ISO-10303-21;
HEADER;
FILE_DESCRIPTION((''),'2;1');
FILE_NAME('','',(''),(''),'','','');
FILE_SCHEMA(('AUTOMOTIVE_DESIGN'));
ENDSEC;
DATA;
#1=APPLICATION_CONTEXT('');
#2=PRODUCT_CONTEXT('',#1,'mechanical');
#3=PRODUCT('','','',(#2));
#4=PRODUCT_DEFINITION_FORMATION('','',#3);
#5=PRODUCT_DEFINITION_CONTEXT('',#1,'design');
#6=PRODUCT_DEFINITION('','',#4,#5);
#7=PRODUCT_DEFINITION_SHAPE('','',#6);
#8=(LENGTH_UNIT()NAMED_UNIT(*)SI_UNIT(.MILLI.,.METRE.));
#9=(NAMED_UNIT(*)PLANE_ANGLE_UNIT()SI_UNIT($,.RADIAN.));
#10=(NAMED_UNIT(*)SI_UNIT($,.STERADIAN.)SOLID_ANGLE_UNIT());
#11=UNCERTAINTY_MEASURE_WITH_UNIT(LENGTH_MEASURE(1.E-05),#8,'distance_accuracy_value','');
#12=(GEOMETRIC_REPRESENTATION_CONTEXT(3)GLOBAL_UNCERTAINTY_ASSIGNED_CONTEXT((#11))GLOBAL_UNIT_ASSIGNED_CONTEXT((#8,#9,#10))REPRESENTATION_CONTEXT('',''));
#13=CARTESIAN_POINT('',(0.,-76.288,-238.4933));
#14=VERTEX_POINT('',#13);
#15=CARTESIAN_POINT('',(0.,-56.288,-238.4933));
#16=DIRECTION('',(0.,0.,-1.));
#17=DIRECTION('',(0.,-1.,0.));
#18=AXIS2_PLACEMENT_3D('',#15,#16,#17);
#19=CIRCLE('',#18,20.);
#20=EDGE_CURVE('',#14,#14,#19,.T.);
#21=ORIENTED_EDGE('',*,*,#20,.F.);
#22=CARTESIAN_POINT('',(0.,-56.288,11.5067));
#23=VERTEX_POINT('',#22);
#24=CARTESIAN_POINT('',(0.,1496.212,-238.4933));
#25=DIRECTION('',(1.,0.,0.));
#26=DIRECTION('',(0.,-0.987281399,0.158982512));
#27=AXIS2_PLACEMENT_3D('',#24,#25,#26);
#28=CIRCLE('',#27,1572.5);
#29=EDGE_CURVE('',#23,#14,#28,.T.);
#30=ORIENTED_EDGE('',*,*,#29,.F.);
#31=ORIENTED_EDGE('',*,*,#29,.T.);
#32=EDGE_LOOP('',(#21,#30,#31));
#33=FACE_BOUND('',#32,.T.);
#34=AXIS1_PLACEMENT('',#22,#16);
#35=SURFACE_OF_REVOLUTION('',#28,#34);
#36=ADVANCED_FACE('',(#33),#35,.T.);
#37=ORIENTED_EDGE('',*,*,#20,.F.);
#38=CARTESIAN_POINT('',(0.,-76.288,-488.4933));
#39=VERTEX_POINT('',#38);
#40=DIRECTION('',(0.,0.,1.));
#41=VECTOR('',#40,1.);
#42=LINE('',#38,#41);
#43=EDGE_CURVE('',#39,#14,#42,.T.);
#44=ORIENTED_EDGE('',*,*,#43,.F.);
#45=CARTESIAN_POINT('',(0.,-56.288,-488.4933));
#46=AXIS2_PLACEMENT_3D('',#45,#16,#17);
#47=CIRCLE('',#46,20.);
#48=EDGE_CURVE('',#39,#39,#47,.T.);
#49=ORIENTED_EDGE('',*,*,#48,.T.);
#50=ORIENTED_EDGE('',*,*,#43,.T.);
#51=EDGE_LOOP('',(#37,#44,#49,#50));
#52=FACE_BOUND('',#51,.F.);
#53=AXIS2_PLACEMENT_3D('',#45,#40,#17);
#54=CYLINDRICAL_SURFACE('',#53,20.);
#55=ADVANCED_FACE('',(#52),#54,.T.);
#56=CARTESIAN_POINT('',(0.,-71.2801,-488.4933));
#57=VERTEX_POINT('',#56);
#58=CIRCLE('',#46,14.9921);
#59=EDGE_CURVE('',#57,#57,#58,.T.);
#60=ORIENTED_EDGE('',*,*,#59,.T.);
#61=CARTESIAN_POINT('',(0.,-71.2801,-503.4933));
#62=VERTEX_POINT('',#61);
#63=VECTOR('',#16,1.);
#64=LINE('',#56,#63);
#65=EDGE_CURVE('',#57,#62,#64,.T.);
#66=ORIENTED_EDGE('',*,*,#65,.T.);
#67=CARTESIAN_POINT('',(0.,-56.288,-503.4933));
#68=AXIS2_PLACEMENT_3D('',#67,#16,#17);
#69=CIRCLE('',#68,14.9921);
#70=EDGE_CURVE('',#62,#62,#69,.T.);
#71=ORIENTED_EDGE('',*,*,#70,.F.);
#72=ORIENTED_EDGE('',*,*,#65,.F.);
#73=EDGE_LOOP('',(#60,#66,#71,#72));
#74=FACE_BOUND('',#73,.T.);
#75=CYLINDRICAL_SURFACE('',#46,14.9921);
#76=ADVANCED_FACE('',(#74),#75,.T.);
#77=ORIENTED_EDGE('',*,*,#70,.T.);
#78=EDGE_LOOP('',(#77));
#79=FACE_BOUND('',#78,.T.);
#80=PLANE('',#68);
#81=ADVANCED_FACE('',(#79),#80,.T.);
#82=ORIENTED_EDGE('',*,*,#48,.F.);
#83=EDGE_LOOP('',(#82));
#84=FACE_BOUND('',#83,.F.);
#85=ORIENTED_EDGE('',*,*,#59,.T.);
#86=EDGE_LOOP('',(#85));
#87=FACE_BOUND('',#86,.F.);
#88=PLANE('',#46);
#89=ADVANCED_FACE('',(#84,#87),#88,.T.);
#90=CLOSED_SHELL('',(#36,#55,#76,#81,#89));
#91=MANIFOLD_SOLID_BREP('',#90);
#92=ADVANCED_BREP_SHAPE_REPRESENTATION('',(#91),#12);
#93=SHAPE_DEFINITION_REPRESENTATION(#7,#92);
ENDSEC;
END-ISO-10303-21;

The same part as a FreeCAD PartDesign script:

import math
import FreeCAD as App
import Part
import Sketcher
from FreeCAD import Vector
Q = App.Units.Quantity

doc = App.newDocument("Part")
body = doc.addObject("PartDesign::Body", "Body")

# Sketch on YZ plane
sketch1 = doc.addObject("Sketcher::SketchObject", "Sketch")
body.addObject(sketch1)
sketch1.AttachmentSupport = (doc.YZ_Plane, [""])
sketch1.MapMode = "FlatFace"
sketch1.addGeometry([
    Part.ArcOfCircle(Part.Circle(Vector(1496, -238, 0), Vector(0, 0, 1), 1572), math.radians(170.85), math.radians(180)),  # 0
    Part.LineSegment(Vector(-76, -238, 0), Vector(-76, -488, 0)),  # 1
    Part.LineSegment(Vector(-76, -488, 0), Vector(-71, -488, 0)),  # 2
    Part.LineSegment(Vector(-71, -488, 0), Vector(-71, -503, 0)),  # 3
    Part.LineSegment(Vector(-71, -503, 0), Vector(-56, -503, 0)),  # 4
    Part.LineSegment(Vector(-56, -503, 0), Vector(-56, 12, 0)),  # 5
], False)
sketch1.addGeometry(Part.LineSegment(Vector(-56, 12, 0), Vector(-56, -503, 0)), True)  # axis
sketch1.addConstraint([
    Sketcher.Constraint("Tangent", 0, 2, 1, 1),
    Sketcher.Constraint("Coincident", 1, 2, 2, 1),
    Sketcher.Constraint("Coincident", 2, 2, 3, 1),
    Sketcher.Constraint("Coincident", 3, 2, 4, 1),
    Sketcher.Constraint("Coincident", 4, 2, 5, 1),
    Sketcher.Constraint("Coincident", 5, 2, 0, 1),
    Sketcher.Constraint("Vertical", 1),
    Sketcher.Constraint("Horizontal", 2),
    Sketcher.Constraint("Vertical", 3),
    Sketcher.Constraint("Horizontal", 4),
    Sketcher.Constraint("Vertical", 5),
    Sketcher.Constraint("Vertical", 6),
    Sketcher.Constraint("Coincident", 6, 1, 5, 2),
    Sketcher.Constraint("Horizontal", 3, 2, 6, 2),
    Sketcher.Constraint("DistanceY", 1, 2, 1, 1, Q("250 mm")),
    Sketcher.Constraint("DistanceY", 3, 2, 3, 1, Q("15 mm")),
    Sketcher.Constraint("DistanceX", 1, 2, 4, 2, Q("20 mm")),
    Sketcher.Constraint("DistanceY", 2, 2, 5, 2, Q("500 mm")),
    Sketcher.Constraint("DistanceX", 2, 1, 2, 2, Q("5.008 mm")),
    Sketcher.Constraint("DistanceX", 2, 2, -1, 1, Q("71.28 mm")),
    Sketcher.Constraint("DistanceY", 0, 3, -1, 1, Q("238.4933 mm")),
])
revolution = doc.addObject("PartDesign::Revolution", "Revolution")
body.addObject(revolution)
revolution.Profile = sketch1
revolution.ReferenceAxis = (sketch1, ["Axis0"])
revolution.Angle = 360

doc.recompute()
